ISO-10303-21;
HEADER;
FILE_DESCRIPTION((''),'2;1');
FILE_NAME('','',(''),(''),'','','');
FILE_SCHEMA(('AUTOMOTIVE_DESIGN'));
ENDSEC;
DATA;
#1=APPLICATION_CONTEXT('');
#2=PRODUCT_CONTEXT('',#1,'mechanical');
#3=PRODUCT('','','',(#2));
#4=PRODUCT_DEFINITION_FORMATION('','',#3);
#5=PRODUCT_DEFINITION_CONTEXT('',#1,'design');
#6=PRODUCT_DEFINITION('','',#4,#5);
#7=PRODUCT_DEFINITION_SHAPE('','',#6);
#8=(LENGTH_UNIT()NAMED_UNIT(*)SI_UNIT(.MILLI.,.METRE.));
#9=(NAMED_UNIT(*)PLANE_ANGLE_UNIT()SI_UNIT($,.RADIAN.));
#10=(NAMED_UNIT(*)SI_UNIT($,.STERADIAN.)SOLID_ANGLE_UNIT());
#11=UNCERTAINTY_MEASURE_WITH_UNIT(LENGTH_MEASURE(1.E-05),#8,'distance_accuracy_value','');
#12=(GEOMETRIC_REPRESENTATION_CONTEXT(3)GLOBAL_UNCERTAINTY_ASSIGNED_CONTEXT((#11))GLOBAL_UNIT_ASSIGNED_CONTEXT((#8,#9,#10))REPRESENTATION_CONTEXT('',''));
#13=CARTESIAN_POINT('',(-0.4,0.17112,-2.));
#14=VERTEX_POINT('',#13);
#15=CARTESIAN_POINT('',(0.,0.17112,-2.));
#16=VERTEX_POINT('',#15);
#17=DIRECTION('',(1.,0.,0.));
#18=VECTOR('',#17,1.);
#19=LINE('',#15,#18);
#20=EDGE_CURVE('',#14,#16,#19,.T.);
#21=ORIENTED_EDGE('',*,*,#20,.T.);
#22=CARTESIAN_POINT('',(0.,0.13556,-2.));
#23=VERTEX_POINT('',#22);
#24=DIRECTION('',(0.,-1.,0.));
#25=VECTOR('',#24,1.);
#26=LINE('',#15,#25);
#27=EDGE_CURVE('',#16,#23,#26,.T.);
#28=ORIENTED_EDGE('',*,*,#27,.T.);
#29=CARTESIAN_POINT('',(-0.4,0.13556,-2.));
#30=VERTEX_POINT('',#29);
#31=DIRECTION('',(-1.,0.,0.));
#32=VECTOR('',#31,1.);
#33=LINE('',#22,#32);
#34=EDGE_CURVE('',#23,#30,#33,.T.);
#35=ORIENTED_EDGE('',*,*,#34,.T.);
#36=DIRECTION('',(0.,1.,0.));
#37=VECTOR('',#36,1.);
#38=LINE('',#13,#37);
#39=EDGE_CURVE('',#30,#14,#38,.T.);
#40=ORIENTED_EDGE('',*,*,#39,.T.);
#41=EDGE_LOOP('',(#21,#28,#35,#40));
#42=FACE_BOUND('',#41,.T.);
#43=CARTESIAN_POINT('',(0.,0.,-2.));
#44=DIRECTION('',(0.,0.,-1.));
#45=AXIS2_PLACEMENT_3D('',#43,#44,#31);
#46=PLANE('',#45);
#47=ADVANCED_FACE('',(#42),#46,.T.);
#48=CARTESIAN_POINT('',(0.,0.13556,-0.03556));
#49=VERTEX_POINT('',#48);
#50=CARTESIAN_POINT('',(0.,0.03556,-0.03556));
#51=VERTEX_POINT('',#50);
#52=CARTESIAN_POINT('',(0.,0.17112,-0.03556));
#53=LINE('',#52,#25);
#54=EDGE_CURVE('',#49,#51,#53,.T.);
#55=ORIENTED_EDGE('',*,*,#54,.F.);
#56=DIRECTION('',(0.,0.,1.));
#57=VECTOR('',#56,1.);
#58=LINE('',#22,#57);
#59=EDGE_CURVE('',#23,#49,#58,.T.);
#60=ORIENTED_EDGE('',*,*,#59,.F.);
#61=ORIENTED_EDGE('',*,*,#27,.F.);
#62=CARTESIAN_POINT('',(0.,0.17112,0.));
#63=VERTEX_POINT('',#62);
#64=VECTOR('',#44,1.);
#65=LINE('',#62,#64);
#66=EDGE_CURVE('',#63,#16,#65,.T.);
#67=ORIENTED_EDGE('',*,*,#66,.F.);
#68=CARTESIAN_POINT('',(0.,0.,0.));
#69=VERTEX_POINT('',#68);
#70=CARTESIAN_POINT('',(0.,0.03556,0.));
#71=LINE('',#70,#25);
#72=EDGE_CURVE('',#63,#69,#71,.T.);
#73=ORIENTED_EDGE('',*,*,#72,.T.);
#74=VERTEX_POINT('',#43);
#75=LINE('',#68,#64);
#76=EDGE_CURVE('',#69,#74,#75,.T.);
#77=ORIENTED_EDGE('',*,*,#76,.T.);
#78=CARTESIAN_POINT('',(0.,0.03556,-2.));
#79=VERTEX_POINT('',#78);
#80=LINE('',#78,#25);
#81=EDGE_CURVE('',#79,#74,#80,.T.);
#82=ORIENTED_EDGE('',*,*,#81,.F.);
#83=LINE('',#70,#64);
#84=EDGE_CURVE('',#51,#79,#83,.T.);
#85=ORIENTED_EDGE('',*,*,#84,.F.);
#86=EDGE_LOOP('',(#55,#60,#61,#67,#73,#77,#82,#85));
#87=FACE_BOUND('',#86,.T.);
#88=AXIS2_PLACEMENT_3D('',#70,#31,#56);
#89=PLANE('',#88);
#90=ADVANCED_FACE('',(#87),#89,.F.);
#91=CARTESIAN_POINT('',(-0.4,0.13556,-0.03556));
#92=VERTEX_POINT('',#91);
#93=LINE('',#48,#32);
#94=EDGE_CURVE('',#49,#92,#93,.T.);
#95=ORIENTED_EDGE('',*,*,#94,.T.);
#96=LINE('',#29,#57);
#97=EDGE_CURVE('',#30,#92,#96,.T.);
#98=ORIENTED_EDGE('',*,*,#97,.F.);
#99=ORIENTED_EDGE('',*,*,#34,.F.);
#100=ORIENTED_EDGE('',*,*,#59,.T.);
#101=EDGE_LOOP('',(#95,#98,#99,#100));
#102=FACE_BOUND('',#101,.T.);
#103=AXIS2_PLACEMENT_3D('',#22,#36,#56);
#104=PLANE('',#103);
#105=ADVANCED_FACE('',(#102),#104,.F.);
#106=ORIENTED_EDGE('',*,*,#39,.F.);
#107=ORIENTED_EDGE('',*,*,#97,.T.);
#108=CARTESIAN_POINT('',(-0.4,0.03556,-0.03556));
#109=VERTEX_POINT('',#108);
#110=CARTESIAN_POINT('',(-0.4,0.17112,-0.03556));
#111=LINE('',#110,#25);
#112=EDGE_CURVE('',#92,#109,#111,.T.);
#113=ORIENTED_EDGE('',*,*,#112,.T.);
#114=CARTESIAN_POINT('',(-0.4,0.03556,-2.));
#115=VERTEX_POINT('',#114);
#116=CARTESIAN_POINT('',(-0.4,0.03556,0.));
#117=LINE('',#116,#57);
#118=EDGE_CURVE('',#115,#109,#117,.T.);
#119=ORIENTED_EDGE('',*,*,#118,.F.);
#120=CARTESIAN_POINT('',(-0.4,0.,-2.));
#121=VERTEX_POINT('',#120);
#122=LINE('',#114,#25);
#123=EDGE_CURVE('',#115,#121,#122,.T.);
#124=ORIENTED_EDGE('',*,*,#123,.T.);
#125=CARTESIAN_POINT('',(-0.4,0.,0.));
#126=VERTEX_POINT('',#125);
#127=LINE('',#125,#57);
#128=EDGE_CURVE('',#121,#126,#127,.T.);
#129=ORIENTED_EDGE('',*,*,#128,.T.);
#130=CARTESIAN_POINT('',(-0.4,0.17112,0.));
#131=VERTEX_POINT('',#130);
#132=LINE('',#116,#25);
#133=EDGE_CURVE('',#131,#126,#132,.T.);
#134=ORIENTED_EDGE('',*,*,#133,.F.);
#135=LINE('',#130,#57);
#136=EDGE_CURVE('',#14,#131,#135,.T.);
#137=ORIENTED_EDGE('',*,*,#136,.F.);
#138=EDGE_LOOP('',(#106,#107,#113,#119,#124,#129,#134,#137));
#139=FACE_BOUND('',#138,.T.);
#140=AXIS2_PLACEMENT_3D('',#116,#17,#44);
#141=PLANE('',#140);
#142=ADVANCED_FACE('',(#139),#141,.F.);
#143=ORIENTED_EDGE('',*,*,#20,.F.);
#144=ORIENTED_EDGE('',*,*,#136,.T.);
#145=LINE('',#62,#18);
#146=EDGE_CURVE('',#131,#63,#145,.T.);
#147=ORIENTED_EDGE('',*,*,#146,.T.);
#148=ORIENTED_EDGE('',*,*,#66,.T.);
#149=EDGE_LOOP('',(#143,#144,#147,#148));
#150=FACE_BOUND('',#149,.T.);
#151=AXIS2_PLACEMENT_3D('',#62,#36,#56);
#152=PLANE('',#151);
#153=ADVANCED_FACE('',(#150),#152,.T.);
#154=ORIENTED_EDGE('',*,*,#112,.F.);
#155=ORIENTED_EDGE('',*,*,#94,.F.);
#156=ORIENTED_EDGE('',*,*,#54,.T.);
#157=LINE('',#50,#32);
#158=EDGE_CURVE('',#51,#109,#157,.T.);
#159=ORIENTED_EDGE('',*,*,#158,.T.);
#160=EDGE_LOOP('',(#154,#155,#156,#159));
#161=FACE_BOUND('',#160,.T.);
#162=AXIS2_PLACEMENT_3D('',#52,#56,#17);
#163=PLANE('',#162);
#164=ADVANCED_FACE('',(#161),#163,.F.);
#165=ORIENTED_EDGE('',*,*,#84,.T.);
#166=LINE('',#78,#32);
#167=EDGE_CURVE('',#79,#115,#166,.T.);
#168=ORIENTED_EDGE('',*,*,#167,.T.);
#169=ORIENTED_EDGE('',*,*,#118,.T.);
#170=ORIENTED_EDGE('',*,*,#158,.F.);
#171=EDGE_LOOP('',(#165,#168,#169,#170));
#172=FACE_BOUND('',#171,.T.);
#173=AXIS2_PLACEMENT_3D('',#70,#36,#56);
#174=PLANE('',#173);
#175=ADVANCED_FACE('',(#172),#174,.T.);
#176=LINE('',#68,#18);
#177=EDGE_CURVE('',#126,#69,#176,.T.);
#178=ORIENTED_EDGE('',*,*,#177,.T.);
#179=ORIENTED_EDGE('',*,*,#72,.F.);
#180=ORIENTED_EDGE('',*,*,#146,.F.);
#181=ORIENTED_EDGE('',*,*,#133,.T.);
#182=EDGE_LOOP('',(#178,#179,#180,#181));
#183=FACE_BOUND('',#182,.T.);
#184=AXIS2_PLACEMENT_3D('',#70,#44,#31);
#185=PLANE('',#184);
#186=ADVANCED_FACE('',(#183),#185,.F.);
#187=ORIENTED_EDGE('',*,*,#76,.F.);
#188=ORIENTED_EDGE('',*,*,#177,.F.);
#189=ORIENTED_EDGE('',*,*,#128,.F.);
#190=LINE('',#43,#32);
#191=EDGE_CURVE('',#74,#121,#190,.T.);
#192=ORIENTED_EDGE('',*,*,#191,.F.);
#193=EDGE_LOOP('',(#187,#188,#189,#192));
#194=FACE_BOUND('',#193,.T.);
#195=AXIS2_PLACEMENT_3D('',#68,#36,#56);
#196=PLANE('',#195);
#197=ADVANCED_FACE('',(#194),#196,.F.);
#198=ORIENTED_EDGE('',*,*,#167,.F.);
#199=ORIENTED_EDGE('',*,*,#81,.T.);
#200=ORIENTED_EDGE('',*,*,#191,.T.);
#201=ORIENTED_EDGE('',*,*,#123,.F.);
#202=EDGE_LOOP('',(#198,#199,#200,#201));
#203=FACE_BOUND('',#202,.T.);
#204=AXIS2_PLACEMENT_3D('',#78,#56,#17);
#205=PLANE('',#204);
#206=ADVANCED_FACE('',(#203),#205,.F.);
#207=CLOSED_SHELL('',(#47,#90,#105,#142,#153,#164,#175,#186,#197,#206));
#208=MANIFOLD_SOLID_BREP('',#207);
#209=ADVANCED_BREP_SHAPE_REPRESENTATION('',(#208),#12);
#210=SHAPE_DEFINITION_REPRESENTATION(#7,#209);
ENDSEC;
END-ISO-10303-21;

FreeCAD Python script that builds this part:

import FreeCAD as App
import Part
import Sketcher

doc = App.newDocument("Part")
body = doc.addObject("PartDesign::Body", "Body")

sketch1 = body.newObject("Sketcher::SketchObject", "Sketch")
sketch1.AttachmentSupport = (doc.getObject("XZ_Plane"), [""])
sketch1.MapMode = "FlatFace"
sketch1.addGeometry(Part.LineSegment(App.Vector(-0.4, -2, 0), App.Vector(-0.4, 0, 0)), False)
sketch1.addGeometry(Part.LineSegment(App.Vector(-0.4, 0, 0), App.Vector(0, 0, 0)), False)
sketch1.addGeometry(Part.LineSegment(App.Vector(0, 0, 0), App.Vector(0, -2, 0)), False)
sketch1.addGeometry(Part.LineSegment(App.Vector(0, -2, 0), App.Vector(-0.4, -2, 0)), False)
sketch1.addConstraint(Sketcher.Constraint("Coincident", 0, 2, 1, 1))
sketch1.addConstraint(Sketcher.Constraint("Coincident", 1, 2, 2, 1))
sketch1.addConstraint(Sketcher.Constraint("Coincident", 2, 2, 3, 1))
sketch1.addConstraint(Sketcher.Constraint("Coincident", 3, 2, 0, 1))
sketch1.addConstraint(Sketcher.Constraint("Vertical", 0))
sketch1.addConstraint(Sketcher.Constraint("Horizontal", 1))
sketch1.addConstraint(Sketcher.Constraint("Vertical", 2))
sketch1.addConstraint(Sketcher.Constraint("Horizontal", 3))
sketch1.addConstraint(Sketcher.Constraint("Coincident", 1, 2, -1, 1))
sketch1.addConstraint(Sketcher.Constraint("DistanceY", 0, 1, 0, 2, 2.0))
sketch1.addConstraint(Sketcher.Constraint("DistanceX", 1, 1, 1, 2, 0.4))
pad1 = body.newObject("PartDesign::Pad", "Pad")
pad1.Profile = sketch1
pad1.Length = 0.03556
pad1.Reversed = True

sketch2 = body.newObject("Sketcher::SketchObject", "Sketch001")
sketch2.AttachmentSupport = (doc.getObject("XZ_Plane"), [""])
sketch2.MapMode = "FlatFace"
sketch2.AttachmentOffset = App.Placement(App.Vector(0, 0, -0.03556), App.Rotation())
sketch2.addGeometry(Part.LineSegment(App.Vector(-0.4, -0.036, 0), App.Vector(-0.4, 0, 0)), False)
sketch2.addGeometry(Part.LineSegment(App.Vector(-0.4, 0, 0), App.Vector(0, 0, 0)), False)
sketch2.addGeometry(Part.LineSegment(App.Vector(0, 0, 0), App.Vector(0, -0.036, 0)), False)
sketch2.addGeometry(Part.LineSegment(App.Vector(0, -0.036, 0), App.Vector(-0.4, -0.036, 0)), False)
sketch2.addConstraint(Sketcher.Constraint("Coincident", 0, 2, 1, 1))
sketch2.addConstraint(Sketcher.Constraint("Coincident", 1, 2, 2, 1))
sketch2.addConstraint(Sketcher.Constraint("Coincident", 2, 2, 3, 1))
sketch2.addConstraint(Sketcher.Constraint("Coincident", 3, 2, 0, 1))
sketch2.addConstraint(Sketcher.Constraint("Vertical", 0))
sketch2.addConstraint(Sketcher.Constraint("Horizontal", 1))
sketch2.addConstraint(Sketcher.Constraint("Vertical", 2))
sketch2.addConstraint(Sketcher.Constraint("Horizontal", 3))
sketch2.addConstraint(Sketcher.Constraint("Coincident", 1, 2, -1, 1))
sketch2.addConstraint(Sketcher.Constraint("DistanceX", 1, 1, 1, 2, 0.4))
sketch2.addConstraint(Sketcher.Constraint("DistanceY", 0, 1, 0, 2, 0.03556))
pad2 = body.newObject("PartDesign::Pad", "Pad001")
pad2.Profile = sketch2
pad2.Length = 0.13556
pad2.Reversed = True

sketch3 = body.newObject("Sketcher::SketchObject", "Sketch002")
sketch3.AttachmentSupport = (doc.getObject("XY_Plane"), [""])
sketch3.MapMode = "FlatFace"
sketch3.AttachmentOffset = App.Placement(App.Vector(0, 0, -0.03556), App.Rotation())
sketch3.addGeometry(Part.LineSegment(App.Vector(0, 0.171, 0), App.Vector(0, 0.136, 0)), False)
sketch3.addGeometry(Part.LineSegment(App.Vector(0, 0.136, 0), App.Vector(-0.4, 0.136, 0)), False)
sketch3.addGeometry(Part.LineSegment(App.Vector(-0.4, 0.136, 0), App.Vector(-0.4, 0.171, 0)), False)
sketch3.addGeometry(Part.LineSegment(App.Vector(-0.4, 0.171, 0), App.Vector(0, 0.171, 0)), False)
sketch3.addConstraint(Sketcher.Constraint("Coincident", 0, 2, 1, 1))
sketch3.addConstraint(Sketcher.Constraint("Coincident", 1, 2, 2, 1))
sketch3.addConstraint(Sketcher.Constraint("Coincident", 2, 2, 3, 1))
sketch3.addConstraint(Sketcher.Constraint("Coincident", 3, 2, 0, 1))
sketch3.addConstraint(Sketcher.Constraint("Vertical", 0))
sketch3.addConstraint(Sketcher.Constraint("Horizontal", 1))
sketch3.addConstraint(Sketcher.Constraint("Vertical", 2))
sketch3.addConstraint(Sketcher.Constraint("Horizontal", 3))
sketch3.addConstraint(Sketcher.Constraint("PointOnObject", 0, 2, -2))
sketch3.addConstraint(Sketcher.Constraint("DistanceX", 1, 2, 1, 1, 0.4))
sketch3.addConstraint(Sketcher.Constraint("DistanceY", 0, 2, 0, 1, 0.03556))
sketch3.addConstraint(Sketcher.Constraint("DistanceY", -1, 1, 0, 2, 0.13556))
pad3 = body.newObject("PartDesign::Pad", "Pad002")
pad3.Profile = sketch3
pad3.Length = 1.96444
pad3.Reversed = True

doc.recompute()
